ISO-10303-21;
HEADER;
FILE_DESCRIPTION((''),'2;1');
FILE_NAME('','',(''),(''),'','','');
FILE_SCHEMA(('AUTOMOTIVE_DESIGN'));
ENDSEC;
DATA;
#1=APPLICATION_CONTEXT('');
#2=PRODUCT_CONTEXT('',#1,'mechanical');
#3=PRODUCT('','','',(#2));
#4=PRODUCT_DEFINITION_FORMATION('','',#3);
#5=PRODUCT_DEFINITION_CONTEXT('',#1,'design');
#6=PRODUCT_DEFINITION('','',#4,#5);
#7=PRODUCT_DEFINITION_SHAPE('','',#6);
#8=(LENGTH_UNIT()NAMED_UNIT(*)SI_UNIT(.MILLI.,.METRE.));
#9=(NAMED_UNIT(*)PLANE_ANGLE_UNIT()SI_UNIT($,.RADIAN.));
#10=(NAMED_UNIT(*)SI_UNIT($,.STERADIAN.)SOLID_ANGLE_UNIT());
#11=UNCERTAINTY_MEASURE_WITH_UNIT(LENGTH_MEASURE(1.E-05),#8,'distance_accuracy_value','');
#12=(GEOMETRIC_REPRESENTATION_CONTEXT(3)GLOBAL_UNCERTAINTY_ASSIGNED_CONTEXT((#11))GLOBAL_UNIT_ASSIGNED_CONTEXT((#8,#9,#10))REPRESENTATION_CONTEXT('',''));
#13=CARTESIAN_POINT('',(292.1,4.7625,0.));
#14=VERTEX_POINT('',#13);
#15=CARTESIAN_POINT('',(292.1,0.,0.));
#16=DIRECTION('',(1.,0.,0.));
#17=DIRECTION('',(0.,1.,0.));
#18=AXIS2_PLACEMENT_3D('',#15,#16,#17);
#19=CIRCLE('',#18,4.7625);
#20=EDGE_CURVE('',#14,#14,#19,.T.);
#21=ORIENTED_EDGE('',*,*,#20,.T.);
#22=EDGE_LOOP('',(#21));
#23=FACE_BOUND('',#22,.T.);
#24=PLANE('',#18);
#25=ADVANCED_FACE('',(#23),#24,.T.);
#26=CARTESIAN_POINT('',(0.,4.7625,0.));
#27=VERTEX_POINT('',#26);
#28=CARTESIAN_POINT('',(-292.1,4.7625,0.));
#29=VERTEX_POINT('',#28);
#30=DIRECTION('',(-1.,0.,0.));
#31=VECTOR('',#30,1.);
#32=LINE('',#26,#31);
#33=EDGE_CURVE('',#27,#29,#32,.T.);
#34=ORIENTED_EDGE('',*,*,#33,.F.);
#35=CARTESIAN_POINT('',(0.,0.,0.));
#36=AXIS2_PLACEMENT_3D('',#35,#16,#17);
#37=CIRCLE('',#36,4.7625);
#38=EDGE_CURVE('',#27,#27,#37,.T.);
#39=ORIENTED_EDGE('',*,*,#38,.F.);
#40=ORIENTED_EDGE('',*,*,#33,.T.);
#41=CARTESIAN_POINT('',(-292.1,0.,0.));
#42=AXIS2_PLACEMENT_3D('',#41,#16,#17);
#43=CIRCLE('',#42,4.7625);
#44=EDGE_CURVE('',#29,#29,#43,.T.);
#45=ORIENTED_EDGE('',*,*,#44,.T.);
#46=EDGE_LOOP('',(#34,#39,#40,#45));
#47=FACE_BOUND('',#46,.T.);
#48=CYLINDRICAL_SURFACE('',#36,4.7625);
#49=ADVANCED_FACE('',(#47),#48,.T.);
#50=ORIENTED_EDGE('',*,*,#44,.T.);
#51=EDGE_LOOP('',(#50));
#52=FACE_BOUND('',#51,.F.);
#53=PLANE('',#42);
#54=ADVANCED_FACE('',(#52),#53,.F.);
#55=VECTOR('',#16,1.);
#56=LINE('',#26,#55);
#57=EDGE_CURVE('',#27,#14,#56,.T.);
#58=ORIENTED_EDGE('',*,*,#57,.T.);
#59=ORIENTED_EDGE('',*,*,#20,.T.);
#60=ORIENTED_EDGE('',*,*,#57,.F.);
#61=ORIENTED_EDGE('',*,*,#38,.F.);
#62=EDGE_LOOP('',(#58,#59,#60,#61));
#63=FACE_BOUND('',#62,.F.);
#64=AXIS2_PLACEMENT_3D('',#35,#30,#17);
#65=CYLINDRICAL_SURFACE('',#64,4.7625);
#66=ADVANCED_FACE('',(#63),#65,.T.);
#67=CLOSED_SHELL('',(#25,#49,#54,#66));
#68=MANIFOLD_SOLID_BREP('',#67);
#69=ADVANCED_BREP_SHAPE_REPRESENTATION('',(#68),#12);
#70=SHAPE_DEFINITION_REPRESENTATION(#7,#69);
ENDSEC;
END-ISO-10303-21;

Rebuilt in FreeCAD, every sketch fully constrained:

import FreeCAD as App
import Part
import Sketcher

V = App.Vector
Q = App.Units.Quantity

doc = App.newDocument("Part")
params = doc.addObject("Spreadsheet::Sheet", "Params")
for row, (alias, value) in enumerate([
    ("sketch1_diameter", "0.375 in"),
    ("pad1_length", "23 in"),
], start=1):
    params.set(f"A{row}", alias)
    params.set(f"B{row}", "=" + value)
    params.setAlias(f"B{row}", alias)

body = doc.addObject("PartDesign::Body", "Body")

sketch1 = body.newObject("Sketcher::SketchObject", "Sketch")
sketch1.AttachmentSupport = (doc.getObject("YZ_Plane"), [""])
sketch1.MapMode = "FlatFace"
sketch1.addGeometry(Part.Circle(V(0, 0, 0), V(0, 0, 1), 4.7625), False)
sketch1.addConstraint([
    Sketcher.Constraint("Coincident", 0, 3, -1, 1),
    Sketcher.Constraint("Diameter", 0, Q("0.375 in")),
])
sketch1.setExpression("Constraints[1]", "Params.sketch1_diameter")
pad1 = body.newObject("PartDesign::Pad", "Pad")
pad1.Profile = sketch1
pad1.setExpression("Length", "Params.pad1_length")
pad1.Midplane = True

doc.recompute()
